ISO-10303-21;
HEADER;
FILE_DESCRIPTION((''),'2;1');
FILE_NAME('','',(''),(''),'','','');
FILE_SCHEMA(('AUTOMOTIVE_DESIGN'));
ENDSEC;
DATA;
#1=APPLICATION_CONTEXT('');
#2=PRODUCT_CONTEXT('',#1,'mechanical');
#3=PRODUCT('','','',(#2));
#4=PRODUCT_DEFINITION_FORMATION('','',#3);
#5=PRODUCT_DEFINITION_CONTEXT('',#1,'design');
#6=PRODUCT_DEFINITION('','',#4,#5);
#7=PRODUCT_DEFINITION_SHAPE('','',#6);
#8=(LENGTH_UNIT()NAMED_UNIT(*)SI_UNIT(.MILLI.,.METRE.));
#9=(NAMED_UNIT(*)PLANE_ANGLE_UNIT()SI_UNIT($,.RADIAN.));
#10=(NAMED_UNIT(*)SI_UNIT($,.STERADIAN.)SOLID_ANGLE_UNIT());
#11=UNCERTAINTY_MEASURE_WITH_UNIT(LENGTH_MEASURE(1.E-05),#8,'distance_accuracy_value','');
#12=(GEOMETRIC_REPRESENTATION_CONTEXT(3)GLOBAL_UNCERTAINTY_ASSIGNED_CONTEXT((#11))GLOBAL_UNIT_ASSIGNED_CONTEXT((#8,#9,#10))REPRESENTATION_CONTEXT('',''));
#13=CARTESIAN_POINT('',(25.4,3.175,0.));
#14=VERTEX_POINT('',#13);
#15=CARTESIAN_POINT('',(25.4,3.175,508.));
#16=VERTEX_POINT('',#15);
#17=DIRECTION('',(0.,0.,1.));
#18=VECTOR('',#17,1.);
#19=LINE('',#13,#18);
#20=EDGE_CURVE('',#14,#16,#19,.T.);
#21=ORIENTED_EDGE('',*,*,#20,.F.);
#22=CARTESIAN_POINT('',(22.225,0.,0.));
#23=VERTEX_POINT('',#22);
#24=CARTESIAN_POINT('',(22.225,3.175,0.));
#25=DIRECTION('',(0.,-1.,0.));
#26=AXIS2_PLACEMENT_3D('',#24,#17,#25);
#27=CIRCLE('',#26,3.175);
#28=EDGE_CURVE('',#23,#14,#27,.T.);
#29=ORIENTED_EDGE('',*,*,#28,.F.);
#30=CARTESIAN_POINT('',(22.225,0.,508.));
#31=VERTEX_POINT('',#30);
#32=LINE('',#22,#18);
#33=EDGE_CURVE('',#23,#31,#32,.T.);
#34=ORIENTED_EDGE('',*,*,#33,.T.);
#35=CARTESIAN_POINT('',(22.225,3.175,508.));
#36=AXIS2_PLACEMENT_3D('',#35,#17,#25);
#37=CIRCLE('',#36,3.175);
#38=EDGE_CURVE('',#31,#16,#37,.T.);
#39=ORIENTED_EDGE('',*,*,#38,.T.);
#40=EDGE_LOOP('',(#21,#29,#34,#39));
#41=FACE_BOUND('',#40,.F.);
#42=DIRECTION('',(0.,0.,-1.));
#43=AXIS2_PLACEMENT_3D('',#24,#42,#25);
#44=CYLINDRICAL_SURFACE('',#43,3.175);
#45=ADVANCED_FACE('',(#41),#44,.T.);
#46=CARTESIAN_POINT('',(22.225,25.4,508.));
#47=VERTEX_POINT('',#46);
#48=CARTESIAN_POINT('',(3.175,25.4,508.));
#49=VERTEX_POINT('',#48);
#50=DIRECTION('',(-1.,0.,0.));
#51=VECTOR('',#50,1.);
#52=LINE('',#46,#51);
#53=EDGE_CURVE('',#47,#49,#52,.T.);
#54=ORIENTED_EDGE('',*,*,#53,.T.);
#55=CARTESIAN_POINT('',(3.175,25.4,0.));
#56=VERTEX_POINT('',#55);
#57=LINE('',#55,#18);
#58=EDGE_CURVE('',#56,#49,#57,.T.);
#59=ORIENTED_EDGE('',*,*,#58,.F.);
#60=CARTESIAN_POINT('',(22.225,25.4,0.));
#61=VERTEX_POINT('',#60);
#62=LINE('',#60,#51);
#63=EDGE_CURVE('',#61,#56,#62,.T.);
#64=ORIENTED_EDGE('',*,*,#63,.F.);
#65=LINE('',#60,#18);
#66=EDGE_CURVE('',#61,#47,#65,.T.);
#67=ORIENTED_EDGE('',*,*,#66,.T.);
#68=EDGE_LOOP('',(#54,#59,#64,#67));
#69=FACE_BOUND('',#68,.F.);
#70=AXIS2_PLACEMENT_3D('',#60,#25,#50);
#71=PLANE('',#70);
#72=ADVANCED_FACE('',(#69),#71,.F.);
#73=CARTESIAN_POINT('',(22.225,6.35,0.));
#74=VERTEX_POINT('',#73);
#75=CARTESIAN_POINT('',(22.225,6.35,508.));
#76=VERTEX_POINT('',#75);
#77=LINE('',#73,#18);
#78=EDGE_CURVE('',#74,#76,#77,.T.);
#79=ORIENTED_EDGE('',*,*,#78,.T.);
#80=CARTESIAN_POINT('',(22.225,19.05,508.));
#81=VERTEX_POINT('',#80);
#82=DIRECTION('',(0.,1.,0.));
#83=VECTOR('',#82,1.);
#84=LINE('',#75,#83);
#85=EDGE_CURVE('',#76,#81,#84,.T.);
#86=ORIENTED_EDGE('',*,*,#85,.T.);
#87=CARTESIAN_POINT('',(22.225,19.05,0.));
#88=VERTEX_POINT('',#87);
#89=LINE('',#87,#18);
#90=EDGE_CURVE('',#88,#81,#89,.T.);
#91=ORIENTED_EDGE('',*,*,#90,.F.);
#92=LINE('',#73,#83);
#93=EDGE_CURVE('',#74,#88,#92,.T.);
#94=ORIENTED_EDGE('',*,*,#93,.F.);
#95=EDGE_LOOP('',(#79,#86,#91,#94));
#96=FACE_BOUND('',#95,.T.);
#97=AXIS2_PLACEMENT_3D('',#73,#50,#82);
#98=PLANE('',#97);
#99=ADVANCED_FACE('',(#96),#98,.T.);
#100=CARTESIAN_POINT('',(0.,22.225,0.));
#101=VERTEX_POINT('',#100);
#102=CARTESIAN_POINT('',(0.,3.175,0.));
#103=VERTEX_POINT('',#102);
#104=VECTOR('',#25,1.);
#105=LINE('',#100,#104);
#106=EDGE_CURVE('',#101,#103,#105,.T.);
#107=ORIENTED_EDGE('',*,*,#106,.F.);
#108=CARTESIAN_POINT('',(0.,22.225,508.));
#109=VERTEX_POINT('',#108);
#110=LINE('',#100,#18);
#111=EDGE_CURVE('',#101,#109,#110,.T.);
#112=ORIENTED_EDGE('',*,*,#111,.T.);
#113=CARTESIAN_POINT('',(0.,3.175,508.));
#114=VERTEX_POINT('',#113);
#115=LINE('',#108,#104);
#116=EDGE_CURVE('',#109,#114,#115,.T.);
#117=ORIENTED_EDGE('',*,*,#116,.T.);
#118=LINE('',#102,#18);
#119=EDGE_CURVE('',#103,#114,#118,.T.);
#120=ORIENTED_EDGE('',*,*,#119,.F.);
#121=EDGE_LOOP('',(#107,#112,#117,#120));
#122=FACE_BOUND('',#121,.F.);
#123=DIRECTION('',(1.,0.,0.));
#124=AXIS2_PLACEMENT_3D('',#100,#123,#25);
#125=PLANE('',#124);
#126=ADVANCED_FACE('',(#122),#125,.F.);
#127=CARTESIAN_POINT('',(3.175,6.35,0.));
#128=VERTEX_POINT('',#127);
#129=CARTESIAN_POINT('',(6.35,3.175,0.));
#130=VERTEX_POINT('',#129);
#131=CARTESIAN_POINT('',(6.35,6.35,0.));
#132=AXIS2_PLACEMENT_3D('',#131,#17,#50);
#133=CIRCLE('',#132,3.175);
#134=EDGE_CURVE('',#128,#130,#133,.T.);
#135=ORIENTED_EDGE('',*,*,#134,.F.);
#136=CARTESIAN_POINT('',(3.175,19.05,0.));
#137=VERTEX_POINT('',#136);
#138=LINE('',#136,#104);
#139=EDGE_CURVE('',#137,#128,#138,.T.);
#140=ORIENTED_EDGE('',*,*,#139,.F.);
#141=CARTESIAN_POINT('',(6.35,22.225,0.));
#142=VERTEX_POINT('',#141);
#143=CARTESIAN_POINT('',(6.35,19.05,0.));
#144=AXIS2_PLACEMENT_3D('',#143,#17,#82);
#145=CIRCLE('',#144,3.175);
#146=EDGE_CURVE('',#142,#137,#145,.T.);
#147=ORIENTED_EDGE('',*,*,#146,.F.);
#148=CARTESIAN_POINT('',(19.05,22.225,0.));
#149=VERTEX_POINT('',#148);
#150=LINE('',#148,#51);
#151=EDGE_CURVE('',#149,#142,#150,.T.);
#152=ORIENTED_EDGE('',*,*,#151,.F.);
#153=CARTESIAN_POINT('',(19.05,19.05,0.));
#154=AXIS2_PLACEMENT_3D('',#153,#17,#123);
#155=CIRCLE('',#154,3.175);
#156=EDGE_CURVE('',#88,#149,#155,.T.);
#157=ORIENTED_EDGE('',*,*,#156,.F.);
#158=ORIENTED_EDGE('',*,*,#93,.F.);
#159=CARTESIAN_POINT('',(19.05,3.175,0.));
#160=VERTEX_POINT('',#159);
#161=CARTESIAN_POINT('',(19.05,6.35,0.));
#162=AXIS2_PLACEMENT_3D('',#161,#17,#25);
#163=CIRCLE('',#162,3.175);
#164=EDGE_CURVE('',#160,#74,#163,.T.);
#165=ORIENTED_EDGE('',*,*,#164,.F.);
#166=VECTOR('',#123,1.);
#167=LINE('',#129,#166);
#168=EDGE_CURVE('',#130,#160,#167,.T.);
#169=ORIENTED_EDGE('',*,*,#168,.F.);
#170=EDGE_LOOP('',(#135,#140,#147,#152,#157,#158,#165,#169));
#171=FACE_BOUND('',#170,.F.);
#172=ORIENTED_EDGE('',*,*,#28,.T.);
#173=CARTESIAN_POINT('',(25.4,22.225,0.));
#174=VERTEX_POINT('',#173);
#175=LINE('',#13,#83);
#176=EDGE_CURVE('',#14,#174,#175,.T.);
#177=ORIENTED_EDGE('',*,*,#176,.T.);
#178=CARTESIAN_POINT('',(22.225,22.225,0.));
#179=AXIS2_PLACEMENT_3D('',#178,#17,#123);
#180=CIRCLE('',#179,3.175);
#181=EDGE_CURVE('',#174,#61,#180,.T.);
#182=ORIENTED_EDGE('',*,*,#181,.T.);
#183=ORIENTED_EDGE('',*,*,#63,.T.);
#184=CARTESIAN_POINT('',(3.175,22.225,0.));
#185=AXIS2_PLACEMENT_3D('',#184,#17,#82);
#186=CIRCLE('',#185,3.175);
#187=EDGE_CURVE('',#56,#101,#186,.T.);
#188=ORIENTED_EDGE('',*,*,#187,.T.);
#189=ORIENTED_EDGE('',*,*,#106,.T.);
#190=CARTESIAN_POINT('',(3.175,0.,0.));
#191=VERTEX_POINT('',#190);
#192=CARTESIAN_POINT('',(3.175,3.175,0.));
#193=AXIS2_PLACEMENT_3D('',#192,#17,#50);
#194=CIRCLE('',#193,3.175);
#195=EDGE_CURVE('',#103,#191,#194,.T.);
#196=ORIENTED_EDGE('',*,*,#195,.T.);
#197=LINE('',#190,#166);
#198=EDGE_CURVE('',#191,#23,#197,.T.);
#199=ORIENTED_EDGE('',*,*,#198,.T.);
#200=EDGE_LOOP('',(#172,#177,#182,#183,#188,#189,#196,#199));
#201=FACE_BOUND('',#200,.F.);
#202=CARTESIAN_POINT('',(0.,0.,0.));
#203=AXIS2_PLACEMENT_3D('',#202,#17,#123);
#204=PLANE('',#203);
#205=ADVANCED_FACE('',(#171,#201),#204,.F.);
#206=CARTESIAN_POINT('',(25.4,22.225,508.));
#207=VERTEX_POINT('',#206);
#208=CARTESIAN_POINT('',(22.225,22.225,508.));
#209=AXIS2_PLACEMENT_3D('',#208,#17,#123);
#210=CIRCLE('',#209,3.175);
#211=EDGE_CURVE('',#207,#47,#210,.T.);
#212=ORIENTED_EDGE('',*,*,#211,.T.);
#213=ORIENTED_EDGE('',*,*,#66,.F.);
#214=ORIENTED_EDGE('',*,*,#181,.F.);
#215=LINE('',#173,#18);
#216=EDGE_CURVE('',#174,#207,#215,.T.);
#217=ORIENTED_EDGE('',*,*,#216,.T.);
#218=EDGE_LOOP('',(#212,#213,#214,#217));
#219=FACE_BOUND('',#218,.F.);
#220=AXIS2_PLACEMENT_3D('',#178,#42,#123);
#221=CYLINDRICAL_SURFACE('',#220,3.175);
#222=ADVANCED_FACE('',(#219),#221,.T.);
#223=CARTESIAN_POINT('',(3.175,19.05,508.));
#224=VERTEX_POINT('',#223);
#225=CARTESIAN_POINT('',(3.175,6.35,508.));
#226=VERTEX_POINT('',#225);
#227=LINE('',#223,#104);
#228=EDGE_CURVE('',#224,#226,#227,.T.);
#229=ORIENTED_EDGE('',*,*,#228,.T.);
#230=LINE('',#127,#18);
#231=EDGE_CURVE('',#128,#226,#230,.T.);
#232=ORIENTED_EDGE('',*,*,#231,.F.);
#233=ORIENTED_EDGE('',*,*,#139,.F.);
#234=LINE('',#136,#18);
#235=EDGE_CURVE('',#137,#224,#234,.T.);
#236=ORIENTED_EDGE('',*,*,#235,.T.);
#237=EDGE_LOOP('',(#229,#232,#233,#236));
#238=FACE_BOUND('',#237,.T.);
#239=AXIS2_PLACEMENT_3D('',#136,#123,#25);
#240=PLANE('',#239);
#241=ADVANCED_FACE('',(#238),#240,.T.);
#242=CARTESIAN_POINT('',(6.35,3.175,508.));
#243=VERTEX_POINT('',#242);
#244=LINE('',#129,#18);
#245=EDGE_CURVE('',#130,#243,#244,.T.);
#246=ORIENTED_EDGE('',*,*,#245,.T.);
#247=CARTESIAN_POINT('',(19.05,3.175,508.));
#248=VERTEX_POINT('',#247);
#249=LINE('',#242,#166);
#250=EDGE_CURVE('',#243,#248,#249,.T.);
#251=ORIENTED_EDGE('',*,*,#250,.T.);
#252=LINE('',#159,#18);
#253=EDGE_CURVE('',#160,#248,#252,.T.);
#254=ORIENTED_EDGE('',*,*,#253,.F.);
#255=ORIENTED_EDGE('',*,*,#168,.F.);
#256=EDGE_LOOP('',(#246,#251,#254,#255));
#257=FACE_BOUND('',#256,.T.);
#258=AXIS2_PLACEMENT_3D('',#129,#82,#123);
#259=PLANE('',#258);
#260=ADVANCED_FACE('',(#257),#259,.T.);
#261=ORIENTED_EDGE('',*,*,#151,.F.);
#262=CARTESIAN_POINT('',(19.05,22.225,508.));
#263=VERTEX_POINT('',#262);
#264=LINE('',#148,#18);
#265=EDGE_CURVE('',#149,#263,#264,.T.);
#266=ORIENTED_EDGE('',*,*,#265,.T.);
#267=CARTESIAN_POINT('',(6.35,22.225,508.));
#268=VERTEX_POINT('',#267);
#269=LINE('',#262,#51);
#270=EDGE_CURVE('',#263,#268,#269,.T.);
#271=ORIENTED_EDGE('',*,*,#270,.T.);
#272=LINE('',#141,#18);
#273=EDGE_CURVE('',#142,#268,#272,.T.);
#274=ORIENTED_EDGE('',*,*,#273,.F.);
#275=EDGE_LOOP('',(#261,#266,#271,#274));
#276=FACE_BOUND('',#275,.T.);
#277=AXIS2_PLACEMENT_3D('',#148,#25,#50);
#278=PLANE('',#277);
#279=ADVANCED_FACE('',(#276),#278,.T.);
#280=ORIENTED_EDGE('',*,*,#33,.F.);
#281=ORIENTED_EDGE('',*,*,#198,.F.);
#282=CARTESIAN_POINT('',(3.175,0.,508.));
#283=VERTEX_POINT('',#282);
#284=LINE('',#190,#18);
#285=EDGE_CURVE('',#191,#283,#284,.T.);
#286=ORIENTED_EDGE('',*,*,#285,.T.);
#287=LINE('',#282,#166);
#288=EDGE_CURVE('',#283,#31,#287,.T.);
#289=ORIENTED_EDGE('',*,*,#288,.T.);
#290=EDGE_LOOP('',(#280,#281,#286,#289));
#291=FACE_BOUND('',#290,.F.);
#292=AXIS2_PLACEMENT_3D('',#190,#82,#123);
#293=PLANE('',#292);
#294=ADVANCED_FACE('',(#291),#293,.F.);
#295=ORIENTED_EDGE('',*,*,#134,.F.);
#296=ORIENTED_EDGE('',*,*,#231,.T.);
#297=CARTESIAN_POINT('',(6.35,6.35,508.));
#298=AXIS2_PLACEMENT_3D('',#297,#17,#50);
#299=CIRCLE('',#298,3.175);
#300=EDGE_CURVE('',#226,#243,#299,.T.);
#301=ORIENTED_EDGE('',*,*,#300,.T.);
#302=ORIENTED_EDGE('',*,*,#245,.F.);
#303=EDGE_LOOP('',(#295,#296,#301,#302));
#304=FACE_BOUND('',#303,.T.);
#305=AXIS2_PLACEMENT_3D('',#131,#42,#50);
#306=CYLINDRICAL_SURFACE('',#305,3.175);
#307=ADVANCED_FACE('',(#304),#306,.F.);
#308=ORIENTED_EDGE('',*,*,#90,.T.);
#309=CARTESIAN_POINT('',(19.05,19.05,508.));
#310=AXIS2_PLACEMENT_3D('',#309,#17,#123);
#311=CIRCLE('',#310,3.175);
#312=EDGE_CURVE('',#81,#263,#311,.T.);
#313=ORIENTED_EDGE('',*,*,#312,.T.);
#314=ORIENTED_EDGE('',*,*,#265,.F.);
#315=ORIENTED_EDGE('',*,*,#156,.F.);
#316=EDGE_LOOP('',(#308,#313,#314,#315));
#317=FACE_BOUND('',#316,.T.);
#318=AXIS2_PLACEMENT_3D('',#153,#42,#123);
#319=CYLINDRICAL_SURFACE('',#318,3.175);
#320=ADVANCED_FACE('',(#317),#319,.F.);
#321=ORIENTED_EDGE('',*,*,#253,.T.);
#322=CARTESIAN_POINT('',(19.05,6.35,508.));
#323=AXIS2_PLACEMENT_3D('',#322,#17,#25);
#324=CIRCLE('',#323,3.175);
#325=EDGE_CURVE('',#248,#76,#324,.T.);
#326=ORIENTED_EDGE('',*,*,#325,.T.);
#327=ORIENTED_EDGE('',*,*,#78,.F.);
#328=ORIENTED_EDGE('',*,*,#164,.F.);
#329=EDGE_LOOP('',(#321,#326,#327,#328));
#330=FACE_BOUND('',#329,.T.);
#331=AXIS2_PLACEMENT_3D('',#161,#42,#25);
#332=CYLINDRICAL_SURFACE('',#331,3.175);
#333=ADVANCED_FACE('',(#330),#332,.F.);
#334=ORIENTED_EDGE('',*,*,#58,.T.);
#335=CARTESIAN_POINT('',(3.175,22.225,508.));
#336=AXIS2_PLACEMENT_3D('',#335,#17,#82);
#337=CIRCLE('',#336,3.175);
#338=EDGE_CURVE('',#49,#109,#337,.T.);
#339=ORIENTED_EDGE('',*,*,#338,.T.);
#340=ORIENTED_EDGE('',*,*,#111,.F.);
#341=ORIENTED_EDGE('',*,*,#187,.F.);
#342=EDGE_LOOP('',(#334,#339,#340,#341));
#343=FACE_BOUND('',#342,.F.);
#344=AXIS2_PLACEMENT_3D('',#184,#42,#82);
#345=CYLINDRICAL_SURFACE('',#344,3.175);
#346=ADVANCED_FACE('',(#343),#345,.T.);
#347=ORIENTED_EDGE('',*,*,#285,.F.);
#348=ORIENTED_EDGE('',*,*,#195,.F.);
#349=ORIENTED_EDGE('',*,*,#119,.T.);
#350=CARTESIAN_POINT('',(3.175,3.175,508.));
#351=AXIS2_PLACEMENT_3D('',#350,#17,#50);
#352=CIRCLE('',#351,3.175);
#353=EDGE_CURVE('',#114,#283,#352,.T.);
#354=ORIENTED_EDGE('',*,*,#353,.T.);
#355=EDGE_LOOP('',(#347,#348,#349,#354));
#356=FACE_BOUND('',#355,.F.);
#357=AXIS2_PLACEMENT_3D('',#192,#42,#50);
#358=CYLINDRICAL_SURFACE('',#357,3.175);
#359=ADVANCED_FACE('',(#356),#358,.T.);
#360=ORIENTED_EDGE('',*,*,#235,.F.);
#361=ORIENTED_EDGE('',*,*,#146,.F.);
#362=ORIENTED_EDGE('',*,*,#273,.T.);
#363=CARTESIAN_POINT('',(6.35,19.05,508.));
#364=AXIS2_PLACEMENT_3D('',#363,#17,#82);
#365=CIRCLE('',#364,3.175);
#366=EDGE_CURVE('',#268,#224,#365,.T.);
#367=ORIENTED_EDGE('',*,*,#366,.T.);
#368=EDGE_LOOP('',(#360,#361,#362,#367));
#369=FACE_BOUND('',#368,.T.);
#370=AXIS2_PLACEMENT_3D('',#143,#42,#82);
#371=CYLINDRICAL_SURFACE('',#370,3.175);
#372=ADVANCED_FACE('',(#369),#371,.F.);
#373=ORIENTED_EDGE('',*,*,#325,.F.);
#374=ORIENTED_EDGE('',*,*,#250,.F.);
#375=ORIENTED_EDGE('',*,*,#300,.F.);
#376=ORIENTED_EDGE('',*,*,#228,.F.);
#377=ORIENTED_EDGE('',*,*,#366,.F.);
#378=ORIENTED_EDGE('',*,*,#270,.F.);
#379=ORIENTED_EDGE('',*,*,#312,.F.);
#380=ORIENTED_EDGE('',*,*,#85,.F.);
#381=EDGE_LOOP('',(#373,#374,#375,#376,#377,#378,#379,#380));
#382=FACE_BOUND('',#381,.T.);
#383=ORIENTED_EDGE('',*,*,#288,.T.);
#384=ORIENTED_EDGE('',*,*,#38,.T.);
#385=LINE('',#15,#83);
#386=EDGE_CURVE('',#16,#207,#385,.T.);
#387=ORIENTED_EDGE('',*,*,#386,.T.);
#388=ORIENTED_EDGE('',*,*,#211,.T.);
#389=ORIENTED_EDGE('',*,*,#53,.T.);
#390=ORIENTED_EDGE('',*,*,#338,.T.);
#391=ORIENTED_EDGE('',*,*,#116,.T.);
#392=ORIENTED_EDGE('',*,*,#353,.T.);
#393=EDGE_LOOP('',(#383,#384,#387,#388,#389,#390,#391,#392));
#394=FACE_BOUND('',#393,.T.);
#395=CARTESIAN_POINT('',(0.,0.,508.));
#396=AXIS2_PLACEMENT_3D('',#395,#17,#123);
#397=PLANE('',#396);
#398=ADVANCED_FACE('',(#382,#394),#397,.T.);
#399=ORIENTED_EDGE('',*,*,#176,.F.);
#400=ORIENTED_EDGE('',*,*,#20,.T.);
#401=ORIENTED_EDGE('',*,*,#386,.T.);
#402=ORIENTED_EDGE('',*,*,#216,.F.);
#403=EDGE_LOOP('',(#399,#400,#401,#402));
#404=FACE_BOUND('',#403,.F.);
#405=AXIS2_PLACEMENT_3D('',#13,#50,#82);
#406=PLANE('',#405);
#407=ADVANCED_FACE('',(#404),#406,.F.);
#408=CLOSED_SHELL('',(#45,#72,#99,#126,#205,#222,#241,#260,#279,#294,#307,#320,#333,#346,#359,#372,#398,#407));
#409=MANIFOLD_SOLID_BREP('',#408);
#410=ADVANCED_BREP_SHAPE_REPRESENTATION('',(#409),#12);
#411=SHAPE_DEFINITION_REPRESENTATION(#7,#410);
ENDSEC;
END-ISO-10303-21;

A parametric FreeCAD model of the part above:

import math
import FreeCAD as App
import Part
import Sketcher
Q = App.Units.Quantity

doc = App.newDocument("Part")
body = doc.addObject("PartDesign::Body", "Body")

sketch1 = body.newObject("Sketcher::SketchObject", "Sketch")
sketch1.AttachmentSupport = (doc.getObject("XY_Plane"), [""])
sketch1.MapMode = "FlatFace"
sketch1.addGeometry([
    Part.ArcOfCircle(Part.Circle(App.Vector(3.175, 3.175, 0), App.Vector(0, 0, 1), 3.175), math.radians(180), math.radians(270)),
    Part.LineSegment(App.Vector(3.175, 0, 0), App.Vector(22.225, 0, 0)),
    Part.ArcOfCircle(Part.Circle(App.Vector(22.225, 3.175, 0), App.Vector(0, 0, 1), 3.175), math.radians(-90), math.radians(0)),
    Part.LineSegment(App.Vector(25.4, 3.175, 0), App.Vector(25.4, 22.225, 0)),
    Part.ArcOfCircle(Part.Circle(App.Vector(22.225, 22.225, 0), App.Vector(0, 0, 1), 3.175), math.radians(0), math.radians(90)),
    Part.LineSegment(App.Vector(22.225, 25.4, 0), App.Vector(3.175, 25.4, 0)),
    Part.ArcOfCircle(Part.Circle(App.Vector(3.175, 22.225, 0), App.Vector(0, 0, 1), 3.175), math.radians(90), math.radians(180)),
    Part.LineSegment(App.Vector(0, 22.225, 0), App.Vector(0, 3.175, 0)),
    Part.LineSegment(App.Vector(19.05, 3.175, 0), App.Vector(6.35, 3.175, 0)),
    Part.ArcOfCircle(Part.Circle(App.Vector(6.35, 6.35, 0), App.Vector(0, 0, 1), 3.175), math.radians(180), math.radians(270)),
    Part.LineSegment(App.Vector(3.175, 6.35, 0), App.Vector(3.175, 19.05, 0)),
    Part.ArcOfCircle(Part.Circle(App.Vector(6.35, 19.05, 0), App.Vector(0, 0, 1), 3.175), math.radians(90), math.radians(180)),
    Part.LineSegment(App.Vector(6.35, 22.225, 0), App.Vector(19.05, 22.225, 0)),
    Part.ArcOfCircle(Part.Circle(App.Vector(19.05, 19.05, 0), App.Vector(0, 0, 1), 3.175), math.radians(0), math.radians(90)),
    Part.LineSegment(App.Vector(22.225, 19.05, 0), App.Vector(22.225, 6.35, 0)),
    Part.ArcOfCircle(Part.Circle(App.Vector(19.05, 6.35, 0), App.Vector(0, 0, 1), 3.175), math.radians(-90), math.radians(0)),
], False)
sketch1.addConstraint([
    Sketcher.Constraint("Tangent", 0, 2, 1, 1),
    Sketcher.Constraint("Tangent", 1, 2, 2, 1),
    Sketcher.Constraint("Tangent", 2, 2, 3, 1),
    Sketcher.Constraint("Tangent", 3, 2, 4, 1),
    Sketcher.Constraint("Tangent", 4, 2, 5, 1),
    Sketcher.Constraint("Tangent", 5, 2, 6, 1),
    Sketcher.Constraint("Tangent", 6, 2, 7, 1),
    Sketcher.Constraint("Tangent", 7, 2, 0, 1),
    Sketcher.Constraint("Tangent", 8, 2, 9, 2),
    Sketcher.Constraint("Tangent", 9, 1, 10, 1),
    Sketcher.Constraint("Tangent", 10, 2, 11, 2),
    Sketcher.Constraint("Tangent", 11, 1, 12, 1),
    Sketcher.Constraint("Tangent", 12, 2, 13, 2),
    Sketcher.Constraint("Tangent", 13, 1, 14, 1),
    Sketcher.Constraint("Tangent", 14, 2, 15, 2),
    Sketcher.Constraint("Tangent", 15, 1, 8, 1),
    Sketcher.Constraint("Horizontal", 1),
    Sketcher.Constraint("Vertical", 3),
    Sketcher.Constraint("Horizontal", 5),
    Sketcher.Constraint("Vertical", 7),
    Sketcher.Constraint("Horizontal", 8),
    Sketcher.Constraint("Vertical", 10),
    Sketcher.Constraint("Horizontal", 12),
    Sketcher.Constraint("Vertical", 14),
    Sketcher.Constraint("Equal", 0, 2),
    Sketcher.Constraint("Equal", 2, 4),
    Sketcher.Constraint("Equal", 4, 6),
    Sketcher.Constraint("Equal", 6, 9),
    Sketcher.Constraint("Equal", 9, 11),
    Sketcher.Constraint("Equal", 11, 13),
    Sketcher.Constraint("Equal", 13, 15),
    Sketcher.Constraint("PointOnObject", 0, 2, -1),
    Sketcher.Constraint("PointOnObject", 6, 2, -2),
    Sketcher.Constraint("Horizontal", 7, 2, 8, 2),
    Sketcher.Constraint("Horizontal", 6, 2, 11, 1),
    Sketcher.Constraint("Vertical", 5, 2, 9, 1),
    Sketcher.Constraint("Vertical", 4, 2, 13, 1),
    Sketcher.Constraint("Equal", 5, 3),
    Sketcher.Constraint("DistanceX", -1, 1, 2, 2, Q("1 in")),
    Sketcher.Constraint("Radius", 0, Q("0.125 in")),
])
pad1 = body.newObject("PartDesign::Pad", "Pad")
pad1.Profile = sketch1
pad1.Length = Q("20 in")

doc.recompute()
